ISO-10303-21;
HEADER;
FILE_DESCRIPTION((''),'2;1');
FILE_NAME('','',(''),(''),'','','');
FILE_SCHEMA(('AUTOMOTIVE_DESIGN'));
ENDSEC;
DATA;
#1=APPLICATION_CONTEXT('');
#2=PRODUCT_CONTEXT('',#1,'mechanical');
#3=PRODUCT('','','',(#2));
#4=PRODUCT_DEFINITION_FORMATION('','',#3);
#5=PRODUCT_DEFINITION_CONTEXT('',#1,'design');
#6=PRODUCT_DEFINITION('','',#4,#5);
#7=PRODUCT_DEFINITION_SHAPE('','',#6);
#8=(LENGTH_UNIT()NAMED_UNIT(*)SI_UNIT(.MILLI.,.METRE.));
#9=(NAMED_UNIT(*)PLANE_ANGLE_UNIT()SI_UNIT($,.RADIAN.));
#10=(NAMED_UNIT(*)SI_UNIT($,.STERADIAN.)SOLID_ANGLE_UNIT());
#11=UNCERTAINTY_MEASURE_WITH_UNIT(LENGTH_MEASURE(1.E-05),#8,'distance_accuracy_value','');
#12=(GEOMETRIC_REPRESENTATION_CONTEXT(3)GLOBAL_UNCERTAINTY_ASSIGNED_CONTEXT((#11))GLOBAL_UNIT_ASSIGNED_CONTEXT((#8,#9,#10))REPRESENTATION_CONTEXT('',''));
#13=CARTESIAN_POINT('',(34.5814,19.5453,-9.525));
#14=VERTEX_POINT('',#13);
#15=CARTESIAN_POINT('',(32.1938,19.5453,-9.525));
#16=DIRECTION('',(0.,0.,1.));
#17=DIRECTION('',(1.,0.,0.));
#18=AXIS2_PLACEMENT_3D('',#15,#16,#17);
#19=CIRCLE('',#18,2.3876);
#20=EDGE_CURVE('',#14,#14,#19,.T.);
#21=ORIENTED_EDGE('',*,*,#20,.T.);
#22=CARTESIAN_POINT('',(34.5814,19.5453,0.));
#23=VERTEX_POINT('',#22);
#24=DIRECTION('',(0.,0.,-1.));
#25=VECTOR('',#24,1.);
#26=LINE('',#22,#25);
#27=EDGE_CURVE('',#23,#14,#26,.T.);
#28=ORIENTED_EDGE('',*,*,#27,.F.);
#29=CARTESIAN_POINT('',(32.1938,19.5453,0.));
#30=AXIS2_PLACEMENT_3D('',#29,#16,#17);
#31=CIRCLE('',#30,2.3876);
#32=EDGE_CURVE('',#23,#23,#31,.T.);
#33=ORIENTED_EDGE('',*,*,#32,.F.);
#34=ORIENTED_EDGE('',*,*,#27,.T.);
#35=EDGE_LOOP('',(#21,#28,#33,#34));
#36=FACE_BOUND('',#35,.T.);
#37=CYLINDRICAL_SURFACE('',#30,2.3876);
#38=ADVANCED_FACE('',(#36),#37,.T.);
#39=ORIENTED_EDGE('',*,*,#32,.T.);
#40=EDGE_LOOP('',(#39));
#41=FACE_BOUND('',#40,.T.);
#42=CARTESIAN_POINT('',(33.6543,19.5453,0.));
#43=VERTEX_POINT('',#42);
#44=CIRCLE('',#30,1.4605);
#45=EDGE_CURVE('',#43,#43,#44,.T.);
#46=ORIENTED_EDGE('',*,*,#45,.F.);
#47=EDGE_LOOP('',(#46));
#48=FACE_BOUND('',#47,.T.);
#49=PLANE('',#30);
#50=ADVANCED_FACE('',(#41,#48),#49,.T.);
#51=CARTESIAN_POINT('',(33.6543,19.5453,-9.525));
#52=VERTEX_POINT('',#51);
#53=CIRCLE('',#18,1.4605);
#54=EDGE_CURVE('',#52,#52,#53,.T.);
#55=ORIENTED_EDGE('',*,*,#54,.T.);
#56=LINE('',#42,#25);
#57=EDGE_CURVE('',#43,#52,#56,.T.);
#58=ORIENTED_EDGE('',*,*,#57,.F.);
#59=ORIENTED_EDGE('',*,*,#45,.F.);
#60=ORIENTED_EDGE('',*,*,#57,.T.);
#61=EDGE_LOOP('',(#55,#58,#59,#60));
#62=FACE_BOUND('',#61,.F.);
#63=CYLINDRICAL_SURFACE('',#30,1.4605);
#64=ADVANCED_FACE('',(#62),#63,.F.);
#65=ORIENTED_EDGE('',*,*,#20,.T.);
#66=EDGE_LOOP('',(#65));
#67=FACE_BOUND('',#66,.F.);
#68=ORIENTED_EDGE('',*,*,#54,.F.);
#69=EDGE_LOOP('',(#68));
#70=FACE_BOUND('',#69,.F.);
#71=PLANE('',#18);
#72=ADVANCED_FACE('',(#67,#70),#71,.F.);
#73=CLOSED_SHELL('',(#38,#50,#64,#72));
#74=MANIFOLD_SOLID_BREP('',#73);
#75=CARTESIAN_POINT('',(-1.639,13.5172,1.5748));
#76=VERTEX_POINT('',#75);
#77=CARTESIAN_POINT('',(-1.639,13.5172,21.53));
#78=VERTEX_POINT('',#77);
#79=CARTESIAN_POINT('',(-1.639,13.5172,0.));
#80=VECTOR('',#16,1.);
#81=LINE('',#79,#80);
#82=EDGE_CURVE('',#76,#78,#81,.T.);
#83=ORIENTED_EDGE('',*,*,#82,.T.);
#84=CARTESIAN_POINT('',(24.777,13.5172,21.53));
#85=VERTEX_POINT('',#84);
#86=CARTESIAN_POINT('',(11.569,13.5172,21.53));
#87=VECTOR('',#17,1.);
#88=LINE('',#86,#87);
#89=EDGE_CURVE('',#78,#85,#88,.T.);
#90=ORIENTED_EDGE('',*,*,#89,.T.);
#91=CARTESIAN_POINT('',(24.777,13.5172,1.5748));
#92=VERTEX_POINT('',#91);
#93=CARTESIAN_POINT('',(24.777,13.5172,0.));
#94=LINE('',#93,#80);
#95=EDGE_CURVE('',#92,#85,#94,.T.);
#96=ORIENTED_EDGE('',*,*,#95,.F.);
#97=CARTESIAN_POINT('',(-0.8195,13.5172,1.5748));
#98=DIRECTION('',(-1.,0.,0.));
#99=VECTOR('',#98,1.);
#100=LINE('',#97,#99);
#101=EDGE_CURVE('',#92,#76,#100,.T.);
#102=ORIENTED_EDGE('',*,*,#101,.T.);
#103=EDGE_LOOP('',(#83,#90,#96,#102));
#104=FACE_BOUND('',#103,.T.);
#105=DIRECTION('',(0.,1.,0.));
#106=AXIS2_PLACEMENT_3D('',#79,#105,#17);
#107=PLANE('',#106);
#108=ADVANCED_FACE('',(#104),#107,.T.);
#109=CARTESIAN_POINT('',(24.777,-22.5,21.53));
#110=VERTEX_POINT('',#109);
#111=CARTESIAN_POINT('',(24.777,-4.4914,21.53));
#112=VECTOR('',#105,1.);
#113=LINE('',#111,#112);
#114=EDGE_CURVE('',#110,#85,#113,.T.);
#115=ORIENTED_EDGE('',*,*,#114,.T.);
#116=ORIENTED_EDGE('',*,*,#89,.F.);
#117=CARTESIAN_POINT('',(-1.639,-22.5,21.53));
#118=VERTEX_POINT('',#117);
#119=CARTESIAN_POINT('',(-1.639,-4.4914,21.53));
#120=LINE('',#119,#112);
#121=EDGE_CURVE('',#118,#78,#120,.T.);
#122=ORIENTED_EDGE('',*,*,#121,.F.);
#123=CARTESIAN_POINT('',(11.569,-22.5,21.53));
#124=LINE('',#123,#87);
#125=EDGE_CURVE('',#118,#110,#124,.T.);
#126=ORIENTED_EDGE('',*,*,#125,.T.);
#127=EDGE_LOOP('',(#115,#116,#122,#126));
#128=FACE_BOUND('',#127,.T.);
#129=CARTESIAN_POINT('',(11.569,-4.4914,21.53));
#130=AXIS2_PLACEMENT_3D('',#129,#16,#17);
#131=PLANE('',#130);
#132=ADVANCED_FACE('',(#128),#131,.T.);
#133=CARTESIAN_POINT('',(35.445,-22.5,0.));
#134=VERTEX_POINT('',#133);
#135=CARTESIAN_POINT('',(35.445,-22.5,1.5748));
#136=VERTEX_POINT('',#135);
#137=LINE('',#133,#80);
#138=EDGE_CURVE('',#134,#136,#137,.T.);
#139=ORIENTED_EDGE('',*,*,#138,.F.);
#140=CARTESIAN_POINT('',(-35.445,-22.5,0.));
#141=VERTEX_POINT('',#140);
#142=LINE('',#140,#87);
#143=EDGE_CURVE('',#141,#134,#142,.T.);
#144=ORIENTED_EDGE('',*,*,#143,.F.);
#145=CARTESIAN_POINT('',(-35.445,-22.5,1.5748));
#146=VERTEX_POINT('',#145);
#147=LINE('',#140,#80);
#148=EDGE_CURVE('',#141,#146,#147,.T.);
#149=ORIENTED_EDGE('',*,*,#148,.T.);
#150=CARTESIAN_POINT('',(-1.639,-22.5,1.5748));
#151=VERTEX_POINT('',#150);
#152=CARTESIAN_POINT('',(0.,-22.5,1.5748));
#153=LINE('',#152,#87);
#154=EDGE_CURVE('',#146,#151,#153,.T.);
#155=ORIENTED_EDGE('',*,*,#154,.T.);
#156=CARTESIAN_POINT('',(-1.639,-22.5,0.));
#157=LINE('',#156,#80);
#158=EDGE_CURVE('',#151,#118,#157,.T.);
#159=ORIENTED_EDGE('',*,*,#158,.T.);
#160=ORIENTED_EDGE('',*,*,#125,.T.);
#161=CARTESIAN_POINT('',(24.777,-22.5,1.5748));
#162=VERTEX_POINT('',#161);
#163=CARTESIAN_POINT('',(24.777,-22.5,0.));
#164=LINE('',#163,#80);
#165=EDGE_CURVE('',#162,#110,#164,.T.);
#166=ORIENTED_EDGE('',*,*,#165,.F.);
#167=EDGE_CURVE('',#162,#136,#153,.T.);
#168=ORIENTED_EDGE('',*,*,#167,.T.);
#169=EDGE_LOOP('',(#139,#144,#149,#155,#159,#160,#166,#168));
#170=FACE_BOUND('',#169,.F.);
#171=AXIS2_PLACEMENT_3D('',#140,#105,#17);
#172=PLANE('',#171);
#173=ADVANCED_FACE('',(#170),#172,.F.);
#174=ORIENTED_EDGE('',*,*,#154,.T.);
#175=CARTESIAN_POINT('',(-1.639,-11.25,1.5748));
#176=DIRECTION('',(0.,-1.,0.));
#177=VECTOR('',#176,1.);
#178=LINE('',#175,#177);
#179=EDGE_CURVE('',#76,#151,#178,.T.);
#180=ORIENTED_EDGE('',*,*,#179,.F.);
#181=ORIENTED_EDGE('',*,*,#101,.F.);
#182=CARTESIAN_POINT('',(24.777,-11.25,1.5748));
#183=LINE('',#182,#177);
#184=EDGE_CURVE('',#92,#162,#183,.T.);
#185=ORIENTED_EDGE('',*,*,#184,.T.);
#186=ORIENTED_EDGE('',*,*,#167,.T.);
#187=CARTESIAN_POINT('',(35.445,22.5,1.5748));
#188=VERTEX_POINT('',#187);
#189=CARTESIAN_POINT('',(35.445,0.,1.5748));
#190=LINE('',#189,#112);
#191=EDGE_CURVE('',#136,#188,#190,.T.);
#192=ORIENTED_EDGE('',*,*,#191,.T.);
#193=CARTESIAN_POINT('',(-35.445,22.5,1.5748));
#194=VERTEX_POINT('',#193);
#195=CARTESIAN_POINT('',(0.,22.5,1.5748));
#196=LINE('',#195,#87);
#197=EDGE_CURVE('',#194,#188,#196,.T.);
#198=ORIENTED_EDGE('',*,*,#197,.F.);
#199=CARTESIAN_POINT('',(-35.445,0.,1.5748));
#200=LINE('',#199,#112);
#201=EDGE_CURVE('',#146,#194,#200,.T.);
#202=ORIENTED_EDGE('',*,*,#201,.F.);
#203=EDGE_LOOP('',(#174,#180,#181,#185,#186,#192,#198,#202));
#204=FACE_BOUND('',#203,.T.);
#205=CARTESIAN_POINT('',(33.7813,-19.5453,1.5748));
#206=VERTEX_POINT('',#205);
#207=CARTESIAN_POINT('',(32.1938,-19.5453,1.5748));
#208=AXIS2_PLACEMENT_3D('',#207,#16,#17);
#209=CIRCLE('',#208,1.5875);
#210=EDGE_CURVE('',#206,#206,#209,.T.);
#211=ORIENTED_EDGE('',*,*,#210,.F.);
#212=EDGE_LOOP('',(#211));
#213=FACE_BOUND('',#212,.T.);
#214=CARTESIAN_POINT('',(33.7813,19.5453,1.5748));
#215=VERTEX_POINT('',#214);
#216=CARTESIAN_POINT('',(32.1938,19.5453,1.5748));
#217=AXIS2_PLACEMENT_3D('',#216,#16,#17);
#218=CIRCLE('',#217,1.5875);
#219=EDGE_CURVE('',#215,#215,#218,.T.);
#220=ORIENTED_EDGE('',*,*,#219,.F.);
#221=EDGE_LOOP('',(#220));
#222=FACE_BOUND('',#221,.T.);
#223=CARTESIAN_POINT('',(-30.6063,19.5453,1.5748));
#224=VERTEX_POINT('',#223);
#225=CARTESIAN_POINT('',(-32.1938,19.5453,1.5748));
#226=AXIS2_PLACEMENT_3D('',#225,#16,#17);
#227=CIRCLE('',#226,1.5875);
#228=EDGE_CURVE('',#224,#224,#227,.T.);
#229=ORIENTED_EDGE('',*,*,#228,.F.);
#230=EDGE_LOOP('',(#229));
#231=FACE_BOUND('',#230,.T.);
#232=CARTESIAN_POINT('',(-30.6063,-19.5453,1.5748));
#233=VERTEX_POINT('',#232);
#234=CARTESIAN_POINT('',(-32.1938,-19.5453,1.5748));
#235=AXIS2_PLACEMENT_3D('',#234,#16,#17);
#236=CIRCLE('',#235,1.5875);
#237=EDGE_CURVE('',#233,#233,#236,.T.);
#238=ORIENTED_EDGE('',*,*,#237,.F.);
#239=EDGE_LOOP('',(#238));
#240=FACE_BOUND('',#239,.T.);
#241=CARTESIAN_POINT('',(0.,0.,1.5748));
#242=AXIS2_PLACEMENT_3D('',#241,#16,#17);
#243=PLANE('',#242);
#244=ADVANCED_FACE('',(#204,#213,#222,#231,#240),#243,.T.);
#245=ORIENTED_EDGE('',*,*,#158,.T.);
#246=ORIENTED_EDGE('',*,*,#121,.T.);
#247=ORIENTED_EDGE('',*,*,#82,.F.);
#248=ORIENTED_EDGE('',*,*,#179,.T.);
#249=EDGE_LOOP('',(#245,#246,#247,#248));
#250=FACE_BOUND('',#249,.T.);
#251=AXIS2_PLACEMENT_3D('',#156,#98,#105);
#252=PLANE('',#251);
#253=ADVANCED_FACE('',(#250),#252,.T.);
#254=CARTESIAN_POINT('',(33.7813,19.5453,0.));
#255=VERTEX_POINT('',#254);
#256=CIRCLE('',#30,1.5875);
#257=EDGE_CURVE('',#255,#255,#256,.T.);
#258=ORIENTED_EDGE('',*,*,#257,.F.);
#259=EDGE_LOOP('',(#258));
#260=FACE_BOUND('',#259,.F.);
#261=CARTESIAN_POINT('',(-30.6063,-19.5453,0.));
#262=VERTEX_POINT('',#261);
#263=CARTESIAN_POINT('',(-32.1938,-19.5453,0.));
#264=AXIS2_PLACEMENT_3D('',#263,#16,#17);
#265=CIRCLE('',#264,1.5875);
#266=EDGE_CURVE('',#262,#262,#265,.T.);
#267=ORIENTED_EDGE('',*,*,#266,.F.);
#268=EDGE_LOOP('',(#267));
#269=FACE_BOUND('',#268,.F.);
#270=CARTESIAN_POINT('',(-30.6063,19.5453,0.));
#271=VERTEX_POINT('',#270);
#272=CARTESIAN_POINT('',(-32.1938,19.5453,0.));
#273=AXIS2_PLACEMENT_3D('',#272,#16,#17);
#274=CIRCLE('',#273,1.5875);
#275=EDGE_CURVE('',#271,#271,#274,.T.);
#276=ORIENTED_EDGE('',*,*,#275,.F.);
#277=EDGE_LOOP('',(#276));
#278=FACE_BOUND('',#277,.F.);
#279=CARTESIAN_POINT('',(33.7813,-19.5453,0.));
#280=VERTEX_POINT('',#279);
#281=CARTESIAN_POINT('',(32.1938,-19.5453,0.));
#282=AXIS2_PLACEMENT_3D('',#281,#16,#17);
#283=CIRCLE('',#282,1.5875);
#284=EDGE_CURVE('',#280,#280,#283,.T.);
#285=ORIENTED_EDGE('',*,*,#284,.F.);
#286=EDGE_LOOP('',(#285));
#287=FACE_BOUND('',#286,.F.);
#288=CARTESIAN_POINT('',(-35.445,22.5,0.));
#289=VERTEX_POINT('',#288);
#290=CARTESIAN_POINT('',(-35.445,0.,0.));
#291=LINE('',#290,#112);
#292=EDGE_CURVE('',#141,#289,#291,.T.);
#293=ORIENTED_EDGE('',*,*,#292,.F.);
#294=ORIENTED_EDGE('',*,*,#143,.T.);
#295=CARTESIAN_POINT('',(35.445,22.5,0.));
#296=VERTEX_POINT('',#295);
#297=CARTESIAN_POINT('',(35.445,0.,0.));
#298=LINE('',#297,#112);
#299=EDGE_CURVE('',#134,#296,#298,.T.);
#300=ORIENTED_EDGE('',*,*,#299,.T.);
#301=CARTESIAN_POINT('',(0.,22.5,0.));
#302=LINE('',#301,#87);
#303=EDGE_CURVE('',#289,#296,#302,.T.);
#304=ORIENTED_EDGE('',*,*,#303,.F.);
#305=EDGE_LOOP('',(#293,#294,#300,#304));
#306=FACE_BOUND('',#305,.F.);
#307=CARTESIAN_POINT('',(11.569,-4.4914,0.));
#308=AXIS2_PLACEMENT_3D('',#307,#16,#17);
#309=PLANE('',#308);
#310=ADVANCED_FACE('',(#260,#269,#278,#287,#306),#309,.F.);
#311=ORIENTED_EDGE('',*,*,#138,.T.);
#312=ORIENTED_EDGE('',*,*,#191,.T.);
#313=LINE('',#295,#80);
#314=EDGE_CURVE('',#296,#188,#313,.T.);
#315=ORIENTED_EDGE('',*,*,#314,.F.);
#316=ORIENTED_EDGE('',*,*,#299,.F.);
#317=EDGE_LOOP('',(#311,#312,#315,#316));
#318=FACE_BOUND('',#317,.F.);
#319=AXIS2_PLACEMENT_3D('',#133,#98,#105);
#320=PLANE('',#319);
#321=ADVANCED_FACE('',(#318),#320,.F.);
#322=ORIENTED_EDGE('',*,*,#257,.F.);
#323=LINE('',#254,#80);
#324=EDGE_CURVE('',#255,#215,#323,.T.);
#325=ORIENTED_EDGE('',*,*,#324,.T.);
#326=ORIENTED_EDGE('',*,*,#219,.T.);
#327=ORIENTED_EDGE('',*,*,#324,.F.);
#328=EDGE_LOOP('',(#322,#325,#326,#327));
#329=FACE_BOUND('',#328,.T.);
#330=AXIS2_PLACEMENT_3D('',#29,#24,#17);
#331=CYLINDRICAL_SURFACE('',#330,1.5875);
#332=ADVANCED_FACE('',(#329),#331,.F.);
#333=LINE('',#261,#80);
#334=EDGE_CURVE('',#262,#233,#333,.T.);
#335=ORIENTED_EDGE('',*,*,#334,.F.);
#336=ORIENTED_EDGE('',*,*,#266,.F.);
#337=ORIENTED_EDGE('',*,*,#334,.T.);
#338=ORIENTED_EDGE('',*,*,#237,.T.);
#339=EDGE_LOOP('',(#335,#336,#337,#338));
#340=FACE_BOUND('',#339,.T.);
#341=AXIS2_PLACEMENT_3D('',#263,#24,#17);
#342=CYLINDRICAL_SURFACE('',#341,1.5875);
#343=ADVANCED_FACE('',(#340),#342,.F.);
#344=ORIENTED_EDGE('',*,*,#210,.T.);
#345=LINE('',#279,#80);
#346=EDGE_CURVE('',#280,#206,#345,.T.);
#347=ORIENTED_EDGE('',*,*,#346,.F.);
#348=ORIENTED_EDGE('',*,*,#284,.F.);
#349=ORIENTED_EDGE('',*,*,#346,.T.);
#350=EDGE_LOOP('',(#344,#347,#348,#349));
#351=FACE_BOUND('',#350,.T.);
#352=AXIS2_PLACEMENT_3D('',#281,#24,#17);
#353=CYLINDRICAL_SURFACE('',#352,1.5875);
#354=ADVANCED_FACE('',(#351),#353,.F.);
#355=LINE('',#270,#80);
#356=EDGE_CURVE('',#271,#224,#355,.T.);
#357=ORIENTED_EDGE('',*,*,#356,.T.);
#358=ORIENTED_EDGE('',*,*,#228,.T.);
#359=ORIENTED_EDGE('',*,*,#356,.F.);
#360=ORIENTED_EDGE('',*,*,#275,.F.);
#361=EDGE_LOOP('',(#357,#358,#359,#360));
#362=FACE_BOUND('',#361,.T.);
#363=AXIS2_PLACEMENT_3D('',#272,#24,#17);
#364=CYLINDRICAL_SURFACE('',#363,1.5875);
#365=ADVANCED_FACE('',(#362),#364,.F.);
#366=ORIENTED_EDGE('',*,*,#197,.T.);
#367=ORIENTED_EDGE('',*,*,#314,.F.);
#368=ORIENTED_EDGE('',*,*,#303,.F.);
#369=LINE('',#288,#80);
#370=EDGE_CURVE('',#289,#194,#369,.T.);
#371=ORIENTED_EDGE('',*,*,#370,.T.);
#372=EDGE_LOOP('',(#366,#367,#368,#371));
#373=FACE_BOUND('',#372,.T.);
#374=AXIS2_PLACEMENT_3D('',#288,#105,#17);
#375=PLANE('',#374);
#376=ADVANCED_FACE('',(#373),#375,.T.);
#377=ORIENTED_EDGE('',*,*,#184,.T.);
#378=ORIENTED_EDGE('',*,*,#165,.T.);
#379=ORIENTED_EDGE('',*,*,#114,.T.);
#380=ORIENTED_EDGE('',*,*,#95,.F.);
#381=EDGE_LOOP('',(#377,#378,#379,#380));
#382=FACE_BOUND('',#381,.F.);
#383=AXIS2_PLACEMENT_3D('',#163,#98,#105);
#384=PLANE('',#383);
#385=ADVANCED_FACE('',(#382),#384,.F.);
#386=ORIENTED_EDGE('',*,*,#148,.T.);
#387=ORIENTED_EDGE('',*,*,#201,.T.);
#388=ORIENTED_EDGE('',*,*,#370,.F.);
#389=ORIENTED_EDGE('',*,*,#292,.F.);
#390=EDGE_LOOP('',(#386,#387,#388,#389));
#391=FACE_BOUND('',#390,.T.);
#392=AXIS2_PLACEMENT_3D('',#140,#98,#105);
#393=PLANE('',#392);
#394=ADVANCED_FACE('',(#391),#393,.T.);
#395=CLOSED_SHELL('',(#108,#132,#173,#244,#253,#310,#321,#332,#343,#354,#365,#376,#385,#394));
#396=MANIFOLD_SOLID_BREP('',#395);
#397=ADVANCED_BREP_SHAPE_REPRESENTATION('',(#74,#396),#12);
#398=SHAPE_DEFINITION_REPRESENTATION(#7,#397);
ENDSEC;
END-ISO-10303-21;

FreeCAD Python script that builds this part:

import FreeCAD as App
import Part
import Sketcher
Q = App.Units.Quantity


def add_polygon(sketch, points):
    """Adds a closed chain of lines whose ends are joined by coincident constraints."""
    first, n = sketch.GeometryCount, len(points)
    for a, b in zip(points, points[1:] + points[:1]):
        sketch.addGeometry(Part.LineSegment(App.Vector(*a, 0), App.Vector(*b, 0)), False)
    for i in range(n):
        sketch.addConstraint(Sketcher.Constraint("Coincident", first + i, 2, first + (i + 1) % n, 1))

doc = App.newDocument("Part")
body = doc.addObject("PartDesign::Body", "Body")

# Sketch on XY plane
sketch1 = doc.addObject("Sketcher::SketchObject", "Sketch")
body.addObject(sketch1)
sketch1.AttachmentSupport = (doc.XY_Plane, [""])
sketch1.MapMode = "FlatFace"
add_polygon(sketch1, [(-35.445, 22.5), (-35.445, -22.5), (35.445, -22.5), (35.445, 22.5)])  # lines 0-3
sketch1.addGeometry(Part.Circle(App.Vector(-32.1938, -19.5453, 0), App.Vector(0, 0, 1), 1.5875), False)  # 4
sketch1.addGeometry(Part.Circle(App.Vector(32.1938, -19.5453, 0), App.Vector(0, 0, 1), 1.5875), False)  # 5
sketch1.addGeometry(Part.Circle(App.Vector(-32.1938, 19.5453, 0), App.Vector(0, 0, 1), 1.5875), False)  # 6
sketch1.addGeometry(Part.Circle(App.Vector(32.1938, 19.5453, 0), App.Vector(0, 0, 1), 1.5875), False)  # 7
sketch1.addConstraint([
    Sketcher.Constraint("Vertical", 0),
    Sketcher.Constraint("Horizontal", 1),
    Sketcher.Constraint("Vertical", 2),
    Sketcher.Constraint("Horizontal", 3),
    Sketcher.Constraint("Equal", 4, 5),
    Sketcher.Constraint("Equal", 5, 6),
    Sketcher.Constraint("Equal", 6, 7),
    Sketcher.Constraint("Symmetric", 5, 3, 6, 3, -1, 1),
    Sketcher.Constraint("Symmetric", 4, 3, 7, 3, -1, 1),
    Sketcher.Constraint("Symmetric", 0, 2, 2, 2, -1, 1),
    Sketcher.Constraint("Symmetric", 4, 3, 5, 3, -2),
    Sketcher.Constraint("Diameter", 4, Q("0.125 in")),
    Sketcher.Constraint("DistanceY", 4, 3, 6, 3, Q("1.539 in")),
    Sketcher.Constraint("DistanceX", 0, 2, 4, 3, Q("0.128 in")),
    Sketcher.Constraint("DistanceX", 1, 1, 1, 2, Q("70.89 mm")),
    Sketcher.Constraint("DistanceY", 0, 2, 0, 1, Q("45 mm")),
])
pad1 = doc.addObject("PartDesign::Pad", "Pad")
body.addObject(pad1)
pad1.Profile = sketch1
pad1.Length = Q("0.062 in")

# Sketch on XY plane
sketch2 = doc.addObject("Sketcher::SketchObject", "Sketch001")
body.addObject(sketch2)
sketch2.AttachmentSupport = (doc.XY_Plane, [""])
sketch2.MapMode = "FlatFace"
add_polygon(sketch2, [(-1.639, 13.5172), (-1.639, -22.5), (24.777, -22.5), (24.777, 13.5172)])  # lines 0-3
sketch2.addConstraint([
    Sketcher.Constraint("Vertical", 0),
    Sketcher.Constraint("Horizontal", 1),
    Sketcher.Constraint("Vertical", 2),
    Sketcher.Constraint("Horizontal", 3),
    Sketcher.Constraint("DistanceX", 1, 1, 1, 2, Q("1.04 in")),
    Sketcher.Constraint("DistanceY", 0, 2, 0, 1, Q("1.418 in")),
    Sketcher.Constraint("DistanceX", 0, 2, -1, 1, Q("1.639 mm")),
    Sketcher.Constraint("DistanceY", 0, 2, -1, 1, Q("22.5 mm")),
])
pad2 = doc.addObject("PartDesign::Pad", "Pad001")
body.addObject(pad2)
pad2.Profile = sketch2
pad2.Length = 21.53
body2 = doc.addObject("PartDesign::Body", "Body001")

# Sketch on XY plane
sketch3 = doc.addObject("Sketcher::SketchObject", "Sketch002")
body2.addObject(sketch3)
sketch3.AttachmentSupport = (doc.getObject("XY_Plane001"), [""])
sketch3.MapMode = "FlatFace"
sketch3.addGeometry([
    Part.Circle(App.Vector(32.1938, 19.5453, 0), App.Vector(0, 0, 1), 2.3876),
    Part.Circle(App.Vector(32.1938, 19.5453, 0), App.Vector(0, 0, 1), 1.4605),
], False)
sketch3.addConstraint([
    Sketcher.Constraint("Coincident", 1, 3, 0, 3),
    Sketcher.Constraint("Diameter", 0, Q("0.188 in")),
    Sketcher.Constraint("Diameter", 1, Q("0.115 in")),
    Sketcher.Constraint("DistanceY", -1, 1, 0, 3, Q("0.7695 in")),
    Sketcher.Constraint("DistanceX", -1, 1, 0, 3, Q("32.1938 mm")),
])
pad3 = doc.addObject("PartDesign::Pad", "Pad002")
body2.addObject(pad3)
pad3.Profile = sketch3
pad3.Length = Q("0.375 in")
pad3.Reversed = True

doc.recompute()
